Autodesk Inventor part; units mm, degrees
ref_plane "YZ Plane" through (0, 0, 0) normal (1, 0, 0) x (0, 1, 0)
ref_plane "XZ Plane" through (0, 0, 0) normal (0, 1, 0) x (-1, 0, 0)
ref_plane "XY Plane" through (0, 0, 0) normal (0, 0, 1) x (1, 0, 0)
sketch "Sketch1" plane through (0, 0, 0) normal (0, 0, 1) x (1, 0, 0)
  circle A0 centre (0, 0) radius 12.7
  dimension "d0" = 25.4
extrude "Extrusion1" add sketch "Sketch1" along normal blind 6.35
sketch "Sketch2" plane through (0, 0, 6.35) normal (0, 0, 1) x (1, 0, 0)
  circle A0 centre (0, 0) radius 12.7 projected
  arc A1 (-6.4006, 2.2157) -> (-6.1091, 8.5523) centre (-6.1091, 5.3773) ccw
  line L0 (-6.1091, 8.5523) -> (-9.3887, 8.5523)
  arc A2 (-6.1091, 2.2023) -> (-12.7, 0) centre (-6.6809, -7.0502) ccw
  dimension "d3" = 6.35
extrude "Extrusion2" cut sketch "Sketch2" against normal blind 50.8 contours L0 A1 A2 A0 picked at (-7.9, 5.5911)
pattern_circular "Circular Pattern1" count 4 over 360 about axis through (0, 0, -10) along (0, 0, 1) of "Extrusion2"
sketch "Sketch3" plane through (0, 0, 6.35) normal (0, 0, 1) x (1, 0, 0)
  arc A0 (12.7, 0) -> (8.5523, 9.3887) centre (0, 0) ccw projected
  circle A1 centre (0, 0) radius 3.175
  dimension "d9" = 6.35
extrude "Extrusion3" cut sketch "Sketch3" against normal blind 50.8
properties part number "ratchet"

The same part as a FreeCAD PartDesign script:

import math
import FreeCAD as App
import Part
import Sketcher
Q = App.Units.Quantity

doc = App.newDocument("Part")
body = doc.addObject("PartDesign::Body", "Body")

# Sketch on XY plane
sketch1 = body.newObject("Sketcher::SketchObject", "Sketch")
sketch1.AttachmentSupport = (doc.getObject("XY_Plane"), [""])
sketch1.MapMode = "FlatFace"
sketch1.addGeometry(Part.Circle(App.Vector(0, 0, 0), App.Vector(0, 0, 1), 13), False)
sketch1.addConstraint(Sketcher.Constraint("Coincident", 0, 3, -1, 1))
sketch1.addConstraint(Sketcher.Constraint("Diameter", 0, Q("1 in")))
pad1 = body.newObject("PartDesign::Pad", "Pad")
pad1.Profile = sketch1
pad1.Length = Q("0.25 in")

# Sketch on XY plane
sketch2 = body.newObject("Sketcher::SketchObject", "Sketch001")
sketch2.AttachmentSupport = (doc.getObject("XY_Plane"), [""])
sketch2.MapMode = "FlatFace"
sketch2.AttachmentOffset = App.Placement(App.Vector(0, 0, 0.25 * 25.4), App.Rotation())
sketch2.addGeometry(Part.LineSegment(App.Vector(-6.1, 8.6, 0), App.Vector(-9.4, 8.6, 0)), False)
sketch2.addGeometry(Part.ArcOfCircle(Part.Circle(App.Vector(0, 0, 0), App.Vector(0, 0, 1), 12.7), math.radians(138), math.radians(180)), False)
sketch2.addGeometry(Part.ArcOfCircle(Part.Circle(App.Vector(-6.7, -7.1, 0), App.Vector(0, 0, 1), 9.3), math.radians(86), math.radians(130)), False)
sketch2.addGeometry(Part.ArcOfCircle(Part.Circle(App.Vector(-6.1, 5.4, 0), App.Vector(0, 0, 1), 3.2), math.radians(-90), math.radians(90)), False)
sketch2.addConstraint(Sketcher.Constraint("Coincident", 0, 2, 1, 1))
sketch2.addConstraint(Sketcher.Constraint("Coincident", 1, 2, 2, 2))
sketch2.addConstraint(Sketcher.Constraint("Coincident", 2, 1, 3, 1))
sketch2.addConstraint(Sketcher.Constraint("Tangent", 3, 2, 0, 1))
sketch2.addConstraint(Sketcher.Constraint("Horizontal", 0))
sketch2.addConstraint(Sketcher.Constraint("Coincident", 1, 3, -1, 1))
sketch2.addConstraint(Sketcher.Constraint("PointOnObject", 1, 2, -1))
sketch2.addConstraint(Sketcher.Constraint("Vertical", 3, 3, 2, 1))
sketch2.addConstraint(Sketcher.Constraint("Radius", 3, Q("0.125 in")))
sketch2.addConstraint(Sketcher.Constraint("Radius", 1, Q("0.5 in")))
sketch2.addConstraint(Sketcher.Constraint("Radius", 2, Q("9.2702 mm")))
sketch2.addConstraint(Sketcher.Constraint("DistanceX", 0, 2, 0, 1, Q("3.2796 mm")))
sketch2.addConstraint(Sketcher.Constraint("DistanceY", -1, 1, 3, 3, Q("0.2117 in")))
pocket1 = body.newObject("PartDesign::Pocket", "Pocket")
pocket1.Profile = sketch2
pocket1.Length = Q("2 in")
doc.recompute()

polarpattern = body.newObject("PartDesign::PolarPattern", "PolarPattern")
polarpattern.Originals = [pocket1]
polarpattern.Axis = (doc.getObject("Z_Axis"), [""])
polarpattern.Angle = 360
polarpattern.Occurrences = 4
body.Tip = polarpattern

# Sketch on XY plane
sketch3 = body.newObject("Sketcher::SketchObject", "Sketch002")
sketch3.AttachmentSupport = (doc.getObject("XY_Plane"), [""])
sketch3.MapMode = "FlatFace"
sketch3.AttachmentOffset = App.Placement(App.Vector(0, 0, 0.25 * 25.4), App.Rotation())
sketch3.addGeometry(Part.Circle(App.Vector(0, 0, 0), App.Vector(0, 0, 1), 3.2), False)
sketch3.addConstraint(Sketcher.Constraint("Coincident", 0, 3, -1, 1))
sketch3.addConstraint(Sketcher.Constraint("Diameter", 0, Q("0.25 in")))
pocket2 = body.newObject("PartDesign::Pocket", "Pocket001")
pocket2.Profile = sketch3
pocket2.Length = Q("2 in")

doc.recompute()
